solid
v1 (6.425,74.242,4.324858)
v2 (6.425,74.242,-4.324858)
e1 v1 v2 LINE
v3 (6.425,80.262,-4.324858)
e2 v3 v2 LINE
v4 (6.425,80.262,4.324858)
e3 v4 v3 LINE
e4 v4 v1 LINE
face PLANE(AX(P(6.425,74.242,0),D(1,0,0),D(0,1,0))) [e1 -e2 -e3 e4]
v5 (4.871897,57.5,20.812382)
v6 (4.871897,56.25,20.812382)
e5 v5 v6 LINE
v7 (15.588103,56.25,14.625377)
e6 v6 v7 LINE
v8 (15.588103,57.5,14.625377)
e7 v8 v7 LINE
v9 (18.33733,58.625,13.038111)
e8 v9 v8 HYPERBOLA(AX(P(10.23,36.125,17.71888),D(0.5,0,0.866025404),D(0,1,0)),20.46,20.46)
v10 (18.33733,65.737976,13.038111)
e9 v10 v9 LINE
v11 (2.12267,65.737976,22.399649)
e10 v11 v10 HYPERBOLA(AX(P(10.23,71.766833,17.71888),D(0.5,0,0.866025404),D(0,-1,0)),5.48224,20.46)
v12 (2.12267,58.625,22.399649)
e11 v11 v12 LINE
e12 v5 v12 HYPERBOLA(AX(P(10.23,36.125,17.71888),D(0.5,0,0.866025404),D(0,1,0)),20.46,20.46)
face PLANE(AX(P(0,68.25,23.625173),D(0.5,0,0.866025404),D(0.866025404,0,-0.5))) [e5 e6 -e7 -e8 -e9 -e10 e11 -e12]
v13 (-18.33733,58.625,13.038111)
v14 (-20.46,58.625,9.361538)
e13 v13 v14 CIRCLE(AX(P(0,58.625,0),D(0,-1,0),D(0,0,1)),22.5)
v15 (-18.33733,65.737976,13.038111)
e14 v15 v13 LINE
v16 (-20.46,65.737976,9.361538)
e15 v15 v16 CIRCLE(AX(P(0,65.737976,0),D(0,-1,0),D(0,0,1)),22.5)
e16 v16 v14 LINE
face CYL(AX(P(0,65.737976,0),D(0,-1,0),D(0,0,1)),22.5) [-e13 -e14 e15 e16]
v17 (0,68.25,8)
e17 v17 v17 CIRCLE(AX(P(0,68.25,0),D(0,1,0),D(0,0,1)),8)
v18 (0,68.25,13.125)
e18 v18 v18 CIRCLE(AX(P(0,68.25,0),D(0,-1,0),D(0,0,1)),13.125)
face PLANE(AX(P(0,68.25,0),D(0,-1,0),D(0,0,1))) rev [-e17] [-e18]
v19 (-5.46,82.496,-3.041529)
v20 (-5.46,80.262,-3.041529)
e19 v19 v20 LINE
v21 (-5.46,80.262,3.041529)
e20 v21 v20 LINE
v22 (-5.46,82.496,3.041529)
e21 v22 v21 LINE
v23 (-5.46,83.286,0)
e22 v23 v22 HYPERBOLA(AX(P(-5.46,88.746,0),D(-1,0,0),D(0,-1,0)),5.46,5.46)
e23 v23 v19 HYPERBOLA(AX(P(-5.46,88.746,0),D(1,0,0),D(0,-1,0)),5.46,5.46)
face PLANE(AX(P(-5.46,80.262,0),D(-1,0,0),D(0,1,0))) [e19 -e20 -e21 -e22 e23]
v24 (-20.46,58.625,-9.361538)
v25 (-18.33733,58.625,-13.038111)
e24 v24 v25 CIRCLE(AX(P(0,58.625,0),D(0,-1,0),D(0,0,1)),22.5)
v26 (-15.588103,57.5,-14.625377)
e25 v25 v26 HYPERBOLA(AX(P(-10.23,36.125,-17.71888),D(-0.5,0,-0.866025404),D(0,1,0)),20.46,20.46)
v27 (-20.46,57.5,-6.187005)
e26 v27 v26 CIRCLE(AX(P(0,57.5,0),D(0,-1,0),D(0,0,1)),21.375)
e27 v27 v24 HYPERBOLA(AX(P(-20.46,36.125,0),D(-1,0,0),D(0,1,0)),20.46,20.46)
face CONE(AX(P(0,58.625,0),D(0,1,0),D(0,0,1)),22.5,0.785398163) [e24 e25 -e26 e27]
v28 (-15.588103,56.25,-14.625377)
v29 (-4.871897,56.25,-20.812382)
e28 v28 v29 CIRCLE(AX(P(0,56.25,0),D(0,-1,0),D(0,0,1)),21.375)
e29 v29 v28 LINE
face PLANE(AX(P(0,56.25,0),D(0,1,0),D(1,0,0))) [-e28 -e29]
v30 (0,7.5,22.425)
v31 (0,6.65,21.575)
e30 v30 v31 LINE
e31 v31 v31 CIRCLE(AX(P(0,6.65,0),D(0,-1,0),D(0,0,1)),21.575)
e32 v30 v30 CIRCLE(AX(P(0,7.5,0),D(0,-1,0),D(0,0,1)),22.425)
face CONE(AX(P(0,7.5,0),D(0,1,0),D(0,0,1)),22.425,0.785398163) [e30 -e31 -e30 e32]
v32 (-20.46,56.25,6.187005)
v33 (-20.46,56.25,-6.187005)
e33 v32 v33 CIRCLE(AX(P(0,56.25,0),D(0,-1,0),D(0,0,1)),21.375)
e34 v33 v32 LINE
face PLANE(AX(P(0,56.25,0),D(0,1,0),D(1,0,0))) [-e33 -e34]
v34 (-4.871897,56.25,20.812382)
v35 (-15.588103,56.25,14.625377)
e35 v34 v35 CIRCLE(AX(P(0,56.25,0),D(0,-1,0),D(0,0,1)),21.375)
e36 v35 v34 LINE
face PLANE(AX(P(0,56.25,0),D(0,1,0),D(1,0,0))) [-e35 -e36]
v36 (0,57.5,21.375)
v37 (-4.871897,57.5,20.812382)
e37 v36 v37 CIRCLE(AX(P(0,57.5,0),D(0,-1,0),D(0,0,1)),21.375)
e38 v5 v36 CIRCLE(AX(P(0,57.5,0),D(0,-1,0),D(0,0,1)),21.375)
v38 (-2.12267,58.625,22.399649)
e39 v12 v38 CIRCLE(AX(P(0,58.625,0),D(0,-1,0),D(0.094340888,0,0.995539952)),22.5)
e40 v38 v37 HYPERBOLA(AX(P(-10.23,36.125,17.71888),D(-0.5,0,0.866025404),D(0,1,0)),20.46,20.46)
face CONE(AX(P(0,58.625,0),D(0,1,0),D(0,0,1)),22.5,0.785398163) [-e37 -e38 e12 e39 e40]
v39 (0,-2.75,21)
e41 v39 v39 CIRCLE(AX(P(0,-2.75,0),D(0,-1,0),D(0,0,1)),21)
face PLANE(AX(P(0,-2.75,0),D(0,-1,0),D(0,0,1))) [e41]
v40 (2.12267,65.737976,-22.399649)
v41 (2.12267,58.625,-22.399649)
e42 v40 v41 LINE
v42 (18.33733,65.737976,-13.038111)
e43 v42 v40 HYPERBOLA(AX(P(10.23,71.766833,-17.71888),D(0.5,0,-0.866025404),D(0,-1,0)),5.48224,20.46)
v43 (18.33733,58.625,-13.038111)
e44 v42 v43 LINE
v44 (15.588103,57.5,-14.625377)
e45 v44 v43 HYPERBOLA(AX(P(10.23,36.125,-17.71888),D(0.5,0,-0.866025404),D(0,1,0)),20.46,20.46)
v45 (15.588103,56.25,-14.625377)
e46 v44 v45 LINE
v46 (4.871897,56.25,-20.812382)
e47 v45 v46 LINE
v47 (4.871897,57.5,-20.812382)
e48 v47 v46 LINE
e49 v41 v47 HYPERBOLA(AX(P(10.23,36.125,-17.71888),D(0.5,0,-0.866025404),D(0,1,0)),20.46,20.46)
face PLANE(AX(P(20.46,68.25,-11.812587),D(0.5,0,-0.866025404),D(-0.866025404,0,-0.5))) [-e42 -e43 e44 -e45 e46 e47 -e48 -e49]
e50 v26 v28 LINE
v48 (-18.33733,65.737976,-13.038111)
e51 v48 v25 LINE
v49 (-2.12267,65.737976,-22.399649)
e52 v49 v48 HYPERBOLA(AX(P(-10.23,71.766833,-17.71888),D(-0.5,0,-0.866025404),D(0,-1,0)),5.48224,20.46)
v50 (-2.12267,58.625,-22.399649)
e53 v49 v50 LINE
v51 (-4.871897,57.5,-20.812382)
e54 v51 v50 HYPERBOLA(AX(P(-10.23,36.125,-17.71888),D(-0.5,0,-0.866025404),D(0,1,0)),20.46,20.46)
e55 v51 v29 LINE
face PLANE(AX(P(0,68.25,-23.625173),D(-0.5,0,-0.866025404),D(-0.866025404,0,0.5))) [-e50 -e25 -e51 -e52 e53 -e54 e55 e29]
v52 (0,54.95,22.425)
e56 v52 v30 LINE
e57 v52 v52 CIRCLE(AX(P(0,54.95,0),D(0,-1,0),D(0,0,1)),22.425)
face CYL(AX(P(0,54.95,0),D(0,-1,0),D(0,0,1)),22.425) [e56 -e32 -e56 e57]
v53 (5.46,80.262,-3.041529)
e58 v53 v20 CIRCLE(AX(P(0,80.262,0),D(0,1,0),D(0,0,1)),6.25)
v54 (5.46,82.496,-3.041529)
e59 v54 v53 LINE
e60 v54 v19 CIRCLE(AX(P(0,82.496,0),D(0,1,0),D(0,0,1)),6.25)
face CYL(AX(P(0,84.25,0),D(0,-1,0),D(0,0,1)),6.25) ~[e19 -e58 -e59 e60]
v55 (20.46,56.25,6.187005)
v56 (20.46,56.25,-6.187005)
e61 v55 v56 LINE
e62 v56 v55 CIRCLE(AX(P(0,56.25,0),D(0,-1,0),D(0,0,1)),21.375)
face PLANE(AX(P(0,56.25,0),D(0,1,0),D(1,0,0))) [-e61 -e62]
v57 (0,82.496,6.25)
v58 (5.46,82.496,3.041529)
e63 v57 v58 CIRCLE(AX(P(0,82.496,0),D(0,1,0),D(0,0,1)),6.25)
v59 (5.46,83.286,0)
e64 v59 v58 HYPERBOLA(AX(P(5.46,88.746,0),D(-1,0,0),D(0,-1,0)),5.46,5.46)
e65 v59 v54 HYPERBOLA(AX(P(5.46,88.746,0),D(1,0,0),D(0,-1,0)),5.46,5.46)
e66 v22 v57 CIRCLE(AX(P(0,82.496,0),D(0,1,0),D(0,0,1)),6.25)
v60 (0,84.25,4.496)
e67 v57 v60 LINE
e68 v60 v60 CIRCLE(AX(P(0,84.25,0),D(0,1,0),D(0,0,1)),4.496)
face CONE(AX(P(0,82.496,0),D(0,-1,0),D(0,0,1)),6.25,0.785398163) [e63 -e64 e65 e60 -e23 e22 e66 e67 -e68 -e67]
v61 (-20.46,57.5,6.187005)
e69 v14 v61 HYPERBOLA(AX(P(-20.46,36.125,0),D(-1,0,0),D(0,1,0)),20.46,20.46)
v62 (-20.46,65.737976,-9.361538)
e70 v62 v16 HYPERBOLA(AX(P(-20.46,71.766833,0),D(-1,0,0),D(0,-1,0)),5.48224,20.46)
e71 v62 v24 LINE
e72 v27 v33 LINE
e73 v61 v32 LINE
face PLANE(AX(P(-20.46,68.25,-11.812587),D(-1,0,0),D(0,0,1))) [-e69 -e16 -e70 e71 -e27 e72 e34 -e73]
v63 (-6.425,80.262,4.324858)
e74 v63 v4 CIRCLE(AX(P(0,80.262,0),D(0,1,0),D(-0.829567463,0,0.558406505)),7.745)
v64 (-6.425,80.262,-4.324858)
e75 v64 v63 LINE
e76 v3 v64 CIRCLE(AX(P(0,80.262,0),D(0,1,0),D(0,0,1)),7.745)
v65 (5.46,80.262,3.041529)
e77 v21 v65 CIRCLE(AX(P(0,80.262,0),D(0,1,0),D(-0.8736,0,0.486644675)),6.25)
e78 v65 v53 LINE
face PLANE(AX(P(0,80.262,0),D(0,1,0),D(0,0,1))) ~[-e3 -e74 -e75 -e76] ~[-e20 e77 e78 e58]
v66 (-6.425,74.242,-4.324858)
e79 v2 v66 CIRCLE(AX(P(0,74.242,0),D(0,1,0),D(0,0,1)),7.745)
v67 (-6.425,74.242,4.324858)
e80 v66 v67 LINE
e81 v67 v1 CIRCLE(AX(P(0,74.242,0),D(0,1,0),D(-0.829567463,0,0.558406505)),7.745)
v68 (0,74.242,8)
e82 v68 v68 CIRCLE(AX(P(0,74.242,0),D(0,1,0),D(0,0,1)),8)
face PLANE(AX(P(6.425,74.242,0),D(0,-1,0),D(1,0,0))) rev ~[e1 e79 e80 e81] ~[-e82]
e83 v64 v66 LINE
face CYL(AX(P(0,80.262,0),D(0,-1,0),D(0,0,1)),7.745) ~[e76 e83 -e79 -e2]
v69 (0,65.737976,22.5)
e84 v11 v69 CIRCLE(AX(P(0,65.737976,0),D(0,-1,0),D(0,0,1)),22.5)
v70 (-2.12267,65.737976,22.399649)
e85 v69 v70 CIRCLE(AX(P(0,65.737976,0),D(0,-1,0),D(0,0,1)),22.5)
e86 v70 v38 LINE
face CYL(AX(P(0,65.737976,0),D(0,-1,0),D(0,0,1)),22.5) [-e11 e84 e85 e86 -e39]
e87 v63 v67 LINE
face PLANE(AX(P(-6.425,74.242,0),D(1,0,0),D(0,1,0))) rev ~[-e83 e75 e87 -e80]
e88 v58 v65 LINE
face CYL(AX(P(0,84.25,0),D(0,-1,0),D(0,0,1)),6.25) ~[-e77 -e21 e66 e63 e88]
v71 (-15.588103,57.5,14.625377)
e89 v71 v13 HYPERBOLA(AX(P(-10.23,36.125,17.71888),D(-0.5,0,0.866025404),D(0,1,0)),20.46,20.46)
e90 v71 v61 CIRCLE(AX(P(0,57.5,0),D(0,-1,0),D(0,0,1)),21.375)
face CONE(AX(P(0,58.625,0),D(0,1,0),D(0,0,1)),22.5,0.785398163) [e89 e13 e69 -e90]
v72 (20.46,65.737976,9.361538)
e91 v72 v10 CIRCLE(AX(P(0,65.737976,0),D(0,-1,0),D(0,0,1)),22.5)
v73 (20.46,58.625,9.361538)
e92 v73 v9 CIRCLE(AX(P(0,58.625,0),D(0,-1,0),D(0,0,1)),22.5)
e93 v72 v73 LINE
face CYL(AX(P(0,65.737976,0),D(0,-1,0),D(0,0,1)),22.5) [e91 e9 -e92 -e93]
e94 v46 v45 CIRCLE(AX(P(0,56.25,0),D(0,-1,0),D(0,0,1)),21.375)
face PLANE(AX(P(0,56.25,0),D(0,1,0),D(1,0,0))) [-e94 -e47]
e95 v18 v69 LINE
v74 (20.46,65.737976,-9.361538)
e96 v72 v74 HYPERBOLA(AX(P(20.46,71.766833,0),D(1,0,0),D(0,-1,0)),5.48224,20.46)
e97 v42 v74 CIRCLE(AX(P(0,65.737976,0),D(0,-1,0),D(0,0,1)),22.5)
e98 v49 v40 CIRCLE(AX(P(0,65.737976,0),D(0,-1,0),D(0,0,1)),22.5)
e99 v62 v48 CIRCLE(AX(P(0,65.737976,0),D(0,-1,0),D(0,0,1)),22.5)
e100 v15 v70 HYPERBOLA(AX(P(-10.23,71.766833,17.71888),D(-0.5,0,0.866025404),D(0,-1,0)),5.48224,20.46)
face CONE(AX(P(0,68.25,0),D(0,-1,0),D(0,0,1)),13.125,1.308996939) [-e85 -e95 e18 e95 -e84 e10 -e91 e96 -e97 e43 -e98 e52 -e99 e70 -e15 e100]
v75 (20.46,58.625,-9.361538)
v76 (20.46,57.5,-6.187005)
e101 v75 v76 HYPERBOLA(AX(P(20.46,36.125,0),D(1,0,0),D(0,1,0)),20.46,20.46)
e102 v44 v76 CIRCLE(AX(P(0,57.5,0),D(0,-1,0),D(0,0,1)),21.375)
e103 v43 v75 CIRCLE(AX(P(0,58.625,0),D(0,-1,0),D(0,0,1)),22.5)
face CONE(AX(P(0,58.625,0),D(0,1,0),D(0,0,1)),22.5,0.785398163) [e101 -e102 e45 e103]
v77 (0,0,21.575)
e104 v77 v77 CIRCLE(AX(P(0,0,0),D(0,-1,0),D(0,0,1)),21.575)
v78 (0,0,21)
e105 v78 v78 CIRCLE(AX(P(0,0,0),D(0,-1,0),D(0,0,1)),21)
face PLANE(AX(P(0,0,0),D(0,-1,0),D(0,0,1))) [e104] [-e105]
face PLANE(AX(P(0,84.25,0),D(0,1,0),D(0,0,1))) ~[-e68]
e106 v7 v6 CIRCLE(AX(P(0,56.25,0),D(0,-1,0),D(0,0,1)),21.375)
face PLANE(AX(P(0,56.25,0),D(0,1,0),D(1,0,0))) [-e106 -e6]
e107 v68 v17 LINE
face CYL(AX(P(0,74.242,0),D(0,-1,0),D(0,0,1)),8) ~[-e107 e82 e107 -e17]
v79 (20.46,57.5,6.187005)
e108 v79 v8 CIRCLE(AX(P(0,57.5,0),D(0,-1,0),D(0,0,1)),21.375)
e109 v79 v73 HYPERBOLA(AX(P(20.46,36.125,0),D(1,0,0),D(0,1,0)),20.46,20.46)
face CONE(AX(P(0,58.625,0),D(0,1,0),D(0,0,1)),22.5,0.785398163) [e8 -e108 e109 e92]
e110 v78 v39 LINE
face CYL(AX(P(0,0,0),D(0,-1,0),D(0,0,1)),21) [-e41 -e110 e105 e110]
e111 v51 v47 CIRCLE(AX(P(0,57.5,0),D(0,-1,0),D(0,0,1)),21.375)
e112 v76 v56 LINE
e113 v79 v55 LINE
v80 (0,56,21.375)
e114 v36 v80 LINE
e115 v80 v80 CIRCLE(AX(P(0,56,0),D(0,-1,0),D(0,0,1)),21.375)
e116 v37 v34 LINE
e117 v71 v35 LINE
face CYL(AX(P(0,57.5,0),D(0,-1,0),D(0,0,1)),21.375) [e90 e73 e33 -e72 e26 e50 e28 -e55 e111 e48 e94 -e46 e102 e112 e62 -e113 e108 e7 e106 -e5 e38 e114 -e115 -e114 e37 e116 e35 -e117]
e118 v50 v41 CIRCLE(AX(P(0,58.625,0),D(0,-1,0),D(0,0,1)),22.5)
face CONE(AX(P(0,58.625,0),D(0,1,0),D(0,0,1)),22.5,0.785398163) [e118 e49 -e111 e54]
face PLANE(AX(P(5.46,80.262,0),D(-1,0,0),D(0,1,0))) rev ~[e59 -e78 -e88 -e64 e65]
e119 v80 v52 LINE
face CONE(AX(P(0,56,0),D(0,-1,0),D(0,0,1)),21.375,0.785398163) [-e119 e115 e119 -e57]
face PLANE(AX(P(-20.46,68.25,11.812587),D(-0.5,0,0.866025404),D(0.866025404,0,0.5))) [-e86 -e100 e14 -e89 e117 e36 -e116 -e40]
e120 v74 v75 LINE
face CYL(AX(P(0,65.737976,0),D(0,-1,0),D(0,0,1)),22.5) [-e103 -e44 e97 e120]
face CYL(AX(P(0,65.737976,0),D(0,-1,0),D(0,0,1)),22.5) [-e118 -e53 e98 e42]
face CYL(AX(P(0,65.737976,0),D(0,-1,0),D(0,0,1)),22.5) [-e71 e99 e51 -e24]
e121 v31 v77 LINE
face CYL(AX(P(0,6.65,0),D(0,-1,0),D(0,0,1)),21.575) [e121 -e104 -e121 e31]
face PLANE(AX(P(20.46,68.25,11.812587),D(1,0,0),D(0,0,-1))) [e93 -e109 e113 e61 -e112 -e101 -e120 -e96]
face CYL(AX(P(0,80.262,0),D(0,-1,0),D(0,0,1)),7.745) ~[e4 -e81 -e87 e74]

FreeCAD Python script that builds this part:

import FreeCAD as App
import Part
import Sketcher

V = App.Vector
Q = App.Units.Quantity


def edges_at(feature, points):
    """Names of the edges that pass closest to the given points."""
    edges = feature.Shape.Edges
    near = lambda p: min(range(len(edges)), key=lambda i: edges[i].distToShape(Part.Vertex(*p))[0])
    return sorted({f"Edge{near(p) + 1}" for p in points})


def add_polygon(sketch, points):
    """Adds a closed chain of lines whose ends are joined by coincident constraints."""
    first, n = sketch.GeometryCount, len(points)
    for a, b in zip(points, points[1:] + points[:1]):
        sketch.addGeometry(Part.LineSegment(App.Vector(*a, 0), App.Vector(*b, 0)), False)
    for i in range(n):
        sketch.addConstraint(Sketcher.Constraint("Coincident", first + i, 2, first + (i + 1) % n, 1))

doc = App.newDocument("Part")
body = doc.addObject("PartDesign::Body", "Body")

# Sketch on XY plane
sketch1 = body.newObject("Sketcher::SketchObject", "Sketch")
sketch1.AttachmentSupport = (doc.getObject("XY_Plane"), [""])
sketch1.MapMode = "FlatFace"
add_polygon(sketch1, [(-21.575, 0), (-21, 0), (-21, -2.75), (0, -2.75), (0, 68.25), (-13.125, 68.25), (-22.5, 65.737976), (-22.5, 58.625), (-21.375, 57.5), (-21.375, 56), (-22.425, 54.95), (-22.425, 7.5), (-21.575, 6.65)])  # lines 0-12
sketch1.addConstraint(Sketcher.Constraint("Horizontal", 0))
sketch1.addConstraint(Sketcher.Constraint("Vertical", 1))
sketch1.addConstraint(Sketcher.Constraint("Horizontal", 2))
sketch1.addConstraint(Sketcher.Constraint("Vertical", 3))
sketch1.addConstraint(Sketcher.Constraint("Horizontal", 4))
sketch1.addConstraint(Sketcher.Constraint("Vertical", 6))
sketch1.addConstraint(Sketcher.Constraint("Vertical", 8))
sketch1.addConstraint(Sketcher.Constraint("Vertical", 10))
sketch1.addConstraint(Sketcher.Constraint("Vertical", 12))
sketch1.addConstraint(Sketcher.Constraint("PointOnObject", 0, 2, -1))
sketch1.addConstraint(Sketcher.Constraint("PointOnObject", 2, 2, -2))
sketch1.addConstraint(Sketcher.Constraint("Perpendicular", 7, 9))
sketch1.addConstraint(Sketcher.Constraint("Perpendicular", 9, 11))
sketch1.addConstraint(Sketcher.Constraint("DistanceX", 2, 1, 2, 2, Q("21 mm")))
sketch1.addConstraint(Sketcher.Constraint("DistanceY", 3, 1, 3, 2, Q("71 mm")))
sketch1.addConstraint(Sketcher.Constraint("Angle", 5, Q("-165 deg")))
sketch1.addConstraint(Sketcher.Constraint("Angle", 7, Q("-45 deg")))
sketch1.addConstraint(Sketcher.Constraint("DistanceY", 8, 2, 8, 1, Q("1.5 mm")))
sketch1.addConstraint(Sketcher.Constraint("DistanceY", -1, 1, 8, 2, Q("56 mm")))
sketch1.addConstraint(Sketcher.Constraint("DistanceY", 1, 2, 1, 1, Q("2.75 mm")))
sketch1.addConstraint(Sketcher.Constraint("DistanceY", 10, 2, 10, 1, Q("47.45 mm")))
sketch1.addConstraint(Sketcher.Constraint("DistanceY", 12, 2, 12, 1, Q("6.65 mm")))
sketch1.addConstraint(Sketcher.Constraint("DistanceX", 5, 2, -1, 1, Q("22.5 mm")))
sketch1.addConstraint(Sketcher.Constraint("DistanceY", -1, 1, 10, 2, Q("7.5 mm")))
sketch1.addConstraint(Sketcher.Constraint("DistanceX", 9, 2, 4, 2, Q("9.3 mm")))
sketch1.addConstraint(Sketcher.Constraint("DistanceX", 0, 1, 0, 2, Q("0.575 mm")))
revolution = body.newObject("PartDesign::Revolution", "Revolution")
revolution.Profile = sketch1
revolution.ReferenceAxis = (sketch1, ["V_Axis"])
revolution.Angle = 360

# Sketch on XZ plane
sketch2 = body.newObject("Sketcher::SketchObject", "Sketch001")
sketch2.AttachmentSupport = (doc.getObject("XZ_Plane"), [""])
sketch2.MapMode = "FlatFace"
sketch2.AttachmentOffset = App.Placement(V(0, 0, -68.25), App.Rotation())
add_polygon(sketch2, [(-33.035, -33.035), (-33.035, 33.035), (33.035, 33.035), (33.035, -33.035)])  # lines 0-3
add_polygon(sketch2, [(-20.46, -11.812587), (0, -23.625173), (20.46, -11.812587), (20.46, 11.812587), (0, 23.625173), (-20.46, 11.812587)])  # lines 4-9
sketch2.addConstraint(Sketcher.Constraint("Vertical", 0))
sketch2.addConstraint(Sketcher.Constraint("Horizontal", 1))
sketch2.addConstraint(Sketcher.Constraint("Vertical", 2))
sketch2.addConstraint(Sketcher.Constraint("Horizontal", 3))
sketch2.addConstraint(Sketcher.Constraint("Vertical", 6))
sketch2.addConstraint(Sketcher.Constraint("Vertical", 9))
sketch2.addConstraint(Sketcher.Constraint("Symmetric", 0, 2, 2, 2, -1, 1))
sketch2.addConstraint(Sketcher.Constraint("Symmetric", 4, 2, 7, 2, -1, 1))
sketch2.addConstraint(Sketcher.Constraint("Symmetric", 5, 2, 8, 2, -1, 1))
sketch2.addConstraint(Sketcher.Constraint("PointOnObject", 4, 2, -2))
sketch2.addConstraint(Sketcher.Constraint("Parallel", 4, 7))
sketch2.addConstraint(Sketcher.Constraint("Horizontal", 6, 2, 8, 2))
sketch2.addConstraint(Sketcher.Constraint("Equal", 3, 0))
sketch2.addConstraint(Sketcher.Constraint("Angle", 4, Q("-30 deg")))
sketch2.addConstraint(Sketcher.Constraint("DistanceX", 1, 1, 1, 2, Q("66.07 mm")))
sketch2.addConstraint(Sketcher.Constraint("DistanceX", -1, 1, 5, 2, Q("20.46 mm")))
sketch2.addConstraint(Sketcher.Constraint("DistanceY", 6, 1, 6, 2, Q("23.625173 mm")))
pocket1 = body.newObject("PartDesign::Pocket", "Pocket")
pocket1.Profile = sketch2
pocket1.Length = 12
pocket1.Reversed = True

# Sketch on XY plane
sketch3 = body.newObject("Sketcher::SketchObject", "Sketch002")
sketch3.AttachmentSupport = (doc.getObject("XY_Plane"), [""])
sketch3.MapMode = "FlatFace"
add_polygon(sketch3, [(0, 84.25), (-6.25, 84.25), (-6.25, 80.262), (-7.745, 80.262), (-7.745, 74.242), (-8, 74.242), (-8, 68.25), (0, 68.25)])  # lines 0-7
sketch3.addConstraint(Sketcher.Constraint("Horizontal", 0))
sketch3.addConstraint(Sketcher.Constraint("Vertical", 1))
sketch3.addConstraint(Sketcher.Constraint("Horizontal", 2))
sketch3.addConstraint(Sketcher.Constraint("Vertical", 3))
sketch3.addConstraint(Sketcher.Constraint("Horizontal", 4))
sketch3.addConstraint(Sketcher.Constraint("Vertical", 5))
sketch3.addConstraint(Sketcher.Constraint("Horizontal", 6))
sketch3.addConstraint(Sketcher.Constraint("Vertical", 7))
sketch3.addConstraint(Sketcher.Constraint("PointOnObject", 6, 2, -2))
sketch3.addConstraint(Sketcher.Constraint("DistanceX", 6, 1, 6, 2, Q("8 mm")))
sketch3.addConstraint(Sketcher.Constraint("DistanceY", 7, 1, 7, 2, Q("16 mm")))
sketch3.addConstraint(Sketcher.Constraint("DistanceX", 0, 2, 0, 1, Q("6.25 mm")))
sketch3.addConstraint(Sketcher.Constraint("DistanceY", 3, 2, 3, 1, Q("6.02 mm")))
sketch3.addConstraint(Sketcher.Constraint("DistanceX", 2, 2, 2, 1, Q("1.495 mm")))
sketch3.addConstraint(Sketcher.Constraint("DistanceY", 1, 2, 1, 1, Q("3.988 mm")))
sketch3.addConstraint(Sketcher.Constraint("DistanceY", -1, 1, 0, 2, Q("84.25 mm")))
revolution2 = body.newObject("PartDesign::Revolution", "Revolution001")
revolution2.Profile = sketch3
revolution2.ReferenceAxis = (sketch3, ["V_Axis"])
revolution2.Angle = 360
doc.recompute()

chamfer = body.newObject("PartDesign::Chamfer", "Chamfer")
chamfer.Base = (revolution2, edges_at(revolution2, [(0, 84.25, -6.25)]))
chamfer.Size = 1.754

# Sketch on XY plane
sketch4 = body.newObject("Sketcher::SketchObject", "Sketch003")
sketch4.AttachmentSupport = (doc.getObject("XY_Plane"), [""])
sketch4.MapMode = "FlatFace"
add_polygon(sketch4, [(-7.745, 84.25), (-7.745, 80.262), (-5.46, 80.262), (-5.46, 84.25)])  # lines 0-3
add_polygon(sketch4, [(5.46, 84.25), (5.46, 80.262), (7.745, 80.262), (7.745, 84.25)])  # lines 4-7
sketch4.addConstraint(Sketcher.Constraint("Vertical", 0))
sketch4.addConstraint(Sketcher.Constraint("Horizontal", 1))
sketch4.addConstraint(Sketcher.Constraint("Vertical", 2))
sketch4.addConstraint(Sketcher.Constraint("Horizontal", 3))
sketch4.addConstraint(Sketcher.Constraint("Vertical", 4))
sketch4.addConstraint(Sketcher.Constraint("Horizontal", 5))
sketch4.addConstraint(Sketcher.Constraint("Vertical", 6))
sketch4.addConstraint(Sketcher.Constraint("Horizontal", 7))
sketch4.addConstraint(Sketcher.Constraint("Symmetric", 1, 2, 4, 2, -2))
sketch4.addConstraint(Sketcher.Constraint("Symmetric", 3, 2, 6, 2, -2))
sketch4.addConstraint(Sketcher.Constraint("DistanceX", 1, 1, 1, 2, Q("2.285 mm")))
sketch4.addConstraint(Sketcher.Constraint("DistanceY", 0, 2, 0, 1, Q("3.988 mm")))
sketch4.addConstraint(Sketcher.Constraint("DistanceX", 1, 2, -1, 1, Q("5.46 mm")))
sketch4.addConstraint(Sketcher.Constraint("DistanceY", -1, 1, 2, 2, Q("84.25 mm")))
pocket2 = body.newObject("PartDesign::Pocket", "Pocket001")
pocket2.Profile = sketch4
pocket2.Type = "ThroughAll"
pocket2.Midplane = True

# Sketch on XY plane
sketch5 = body.newObject("Sketcher::SketchObject", "Sketch004")
sketch5.AttachmentSupport = (doc.getObject("XY_Plane"), [""])
sketch5.MapMode = "FlatFace"
add_polygon(sketch5, [(-8, 80.262), (-8, 74.242), (-6.425, 74.242), (-6.425, 80.262)])  # lines 0-3
add_polygon(sketch5, [(6.425, 80.262), (6.425, 74.242), (8, 74.242), (8, 80.262)])  # lines 4-7
sketch5.addConstraint(Sketcher.Constraint("Vertical", 0))
sketch5.addConstraint(Sketcher.Constraint("Horizontal", 1))
sketch5.addConstraint(Sketcher.Constraint("Vertical", 2))
sketch5.addConstraint(Sketcher.Constraint("Horizontal", 3))
sketch5.addConstraint(Sketcher.Constraint("Vertical", 4))
sketch5.addConstraint(Sketcher.Constraint("Horizontal", 5))
sketch5.addConstraint(Sketcher.Constraint("Vertical", 6))
sketch5.addConstraint(Sketcher.Constraint("Horizontal", 7))
sketch5.addConstraint(Sketcher.Constraint("Symmetric", 1, 2, 4, 2, -2))
sketch5.addConstraint(Sketcher.Constraint("Symmetric", 3, 2, 6, 2, -2))
sketch5.addConstraint(Sketcher.Constraint("DistanceX", 0, 2, -1, 1, Q("8 mm")))
sketch5.addConstraint(Sketcher.Constraint("DistanceY", 0, 2, 0, 1, Q("6.02 mm")))
sketch5.addConstraint(Sketcher.Constraint("DistanceX", 1, 1, 1, 2, Q("1.575 mm")))
sketch5.addConstraint(Sketcher.Constraint("DistanceY", -1, 1, 0, 2, Q("74.242 mm")))
pocket3 = body.newObject("PartDesign::Pocket", "Pocket002")
pocket3.Profile = sketch5
pocket3.Type = "ThroughAll"
pocket3.Midplane = True

doc.recompute()
